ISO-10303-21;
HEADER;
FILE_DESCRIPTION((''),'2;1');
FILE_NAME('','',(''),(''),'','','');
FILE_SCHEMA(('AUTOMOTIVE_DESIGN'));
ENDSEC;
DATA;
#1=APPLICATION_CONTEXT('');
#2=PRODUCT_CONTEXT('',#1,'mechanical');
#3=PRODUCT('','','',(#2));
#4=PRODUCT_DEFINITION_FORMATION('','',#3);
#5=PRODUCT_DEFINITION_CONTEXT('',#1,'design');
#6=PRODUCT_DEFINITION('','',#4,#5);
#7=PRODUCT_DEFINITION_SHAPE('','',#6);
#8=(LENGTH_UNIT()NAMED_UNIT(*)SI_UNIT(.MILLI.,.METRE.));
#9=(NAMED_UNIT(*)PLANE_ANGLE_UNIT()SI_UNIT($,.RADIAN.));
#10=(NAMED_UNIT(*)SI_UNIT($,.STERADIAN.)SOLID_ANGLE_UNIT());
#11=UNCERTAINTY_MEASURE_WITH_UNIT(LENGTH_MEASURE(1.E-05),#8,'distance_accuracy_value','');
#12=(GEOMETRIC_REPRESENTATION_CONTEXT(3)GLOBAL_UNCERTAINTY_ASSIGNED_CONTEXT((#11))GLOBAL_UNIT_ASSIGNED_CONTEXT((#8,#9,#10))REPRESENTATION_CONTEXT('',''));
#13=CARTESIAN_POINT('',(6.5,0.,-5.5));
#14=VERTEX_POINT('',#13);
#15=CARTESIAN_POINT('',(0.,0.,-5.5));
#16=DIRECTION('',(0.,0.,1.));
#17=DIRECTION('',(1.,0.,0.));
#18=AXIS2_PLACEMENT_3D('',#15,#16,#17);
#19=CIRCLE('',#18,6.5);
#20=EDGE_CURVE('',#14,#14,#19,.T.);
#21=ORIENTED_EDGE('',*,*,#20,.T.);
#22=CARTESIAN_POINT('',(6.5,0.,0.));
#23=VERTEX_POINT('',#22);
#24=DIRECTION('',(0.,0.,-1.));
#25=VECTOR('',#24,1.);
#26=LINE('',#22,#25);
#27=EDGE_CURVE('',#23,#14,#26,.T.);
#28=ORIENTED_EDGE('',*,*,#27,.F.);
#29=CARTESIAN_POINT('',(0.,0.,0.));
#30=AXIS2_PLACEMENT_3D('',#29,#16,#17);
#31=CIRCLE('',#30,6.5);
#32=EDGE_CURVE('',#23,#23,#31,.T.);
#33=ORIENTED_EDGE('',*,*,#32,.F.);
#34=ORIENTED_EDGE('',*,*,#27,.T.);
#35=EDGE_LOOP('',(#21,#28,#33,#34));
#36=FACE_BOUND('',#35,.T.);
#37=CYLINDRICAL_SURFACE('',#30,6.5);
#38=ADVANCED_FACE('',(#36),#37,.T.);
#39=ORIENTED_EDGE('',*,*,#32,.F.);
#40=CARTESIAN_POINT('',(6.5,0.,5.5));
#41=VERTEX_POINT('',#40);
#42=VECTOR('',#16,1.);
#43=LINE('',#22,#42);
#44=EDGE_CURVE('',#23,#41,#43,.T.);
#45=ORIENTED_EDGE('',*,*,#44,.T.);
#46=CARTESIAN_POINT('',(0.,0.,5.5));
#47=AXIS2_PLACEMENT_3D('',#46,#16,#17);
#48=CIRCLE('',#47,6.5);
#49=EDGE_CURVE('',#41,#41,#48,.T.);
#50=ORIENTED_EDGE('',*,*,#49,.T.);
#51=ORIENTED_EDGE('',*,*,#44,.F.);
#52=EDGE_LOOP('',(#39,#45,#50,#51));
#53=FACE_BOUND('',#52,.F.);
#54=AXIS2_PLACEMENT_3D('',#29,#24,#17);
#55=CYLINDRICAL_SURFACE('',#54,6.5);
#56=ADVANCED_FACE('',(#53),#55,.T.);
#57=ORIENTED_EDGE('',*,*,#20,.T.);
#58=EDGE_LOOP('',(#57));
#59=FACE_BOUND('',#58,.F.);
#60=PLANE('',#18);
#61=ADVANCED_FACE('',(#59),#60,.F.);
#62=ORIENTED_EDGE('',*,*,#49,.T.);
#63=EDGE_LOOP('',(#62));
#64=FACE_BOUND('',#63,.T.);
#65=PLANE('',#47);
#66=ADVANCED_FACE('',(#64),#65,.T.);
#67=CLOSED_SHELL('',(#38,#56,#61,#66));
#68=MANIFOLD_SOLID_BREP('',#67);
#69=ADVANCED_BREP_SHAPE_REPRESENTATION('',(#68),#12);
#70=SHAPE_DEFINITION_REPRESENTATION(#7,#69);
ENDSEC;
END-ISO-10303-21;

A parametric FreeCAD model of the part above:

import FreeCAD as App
import Part
import Sketcher

V = App.Vector
Q = App.Units.Quantity

doc = App.newDocument("Part")
params = doc.addObject("Spreadsheet::Sheet", "Params")
for row, (alias, value) in enumerate([
    ("sketch1_diameter", "13 mm"),
    ("pad1_length", "11 mm"),
], start=1):
    params.set(f"A{row}", alias)
    params.set(f"B{row}", "=" + value)
    params.setAlias(f"B{row}", alias)

body = doc.addObject("PartDesign::Body", "Body")

# Sketch on XY plane
sketch1 = body.newObject("Sketcher::SketchObject", "Sketch")
sketch1.AttachmentSupport = (doc.getObject("XY_Plane"), [""])
sketch1.MapMode = "FlatFace"
sketch1.addGeometry(Part.Circle(V(0, 0, 0), V(0, 0, 1), 6), False)
sketch1.addConstraint(Sketcher.Constraint("Coincident", 0, 3, -1, 1))
sketch1.addConstraint(Sketcher.Constraint("Diameter", 0, Q("13 mm")))
sketch1.setExpression("Constraints[1]", "Params.sketch1_diameter")
pad1 = body.newObject("PartDesign::Pad", "Pad")
pad1.Profile = sketch1
pad1.setExpression("Length", "Params.pad1_length")
pad1.Midplane = True

doc.recompute()
